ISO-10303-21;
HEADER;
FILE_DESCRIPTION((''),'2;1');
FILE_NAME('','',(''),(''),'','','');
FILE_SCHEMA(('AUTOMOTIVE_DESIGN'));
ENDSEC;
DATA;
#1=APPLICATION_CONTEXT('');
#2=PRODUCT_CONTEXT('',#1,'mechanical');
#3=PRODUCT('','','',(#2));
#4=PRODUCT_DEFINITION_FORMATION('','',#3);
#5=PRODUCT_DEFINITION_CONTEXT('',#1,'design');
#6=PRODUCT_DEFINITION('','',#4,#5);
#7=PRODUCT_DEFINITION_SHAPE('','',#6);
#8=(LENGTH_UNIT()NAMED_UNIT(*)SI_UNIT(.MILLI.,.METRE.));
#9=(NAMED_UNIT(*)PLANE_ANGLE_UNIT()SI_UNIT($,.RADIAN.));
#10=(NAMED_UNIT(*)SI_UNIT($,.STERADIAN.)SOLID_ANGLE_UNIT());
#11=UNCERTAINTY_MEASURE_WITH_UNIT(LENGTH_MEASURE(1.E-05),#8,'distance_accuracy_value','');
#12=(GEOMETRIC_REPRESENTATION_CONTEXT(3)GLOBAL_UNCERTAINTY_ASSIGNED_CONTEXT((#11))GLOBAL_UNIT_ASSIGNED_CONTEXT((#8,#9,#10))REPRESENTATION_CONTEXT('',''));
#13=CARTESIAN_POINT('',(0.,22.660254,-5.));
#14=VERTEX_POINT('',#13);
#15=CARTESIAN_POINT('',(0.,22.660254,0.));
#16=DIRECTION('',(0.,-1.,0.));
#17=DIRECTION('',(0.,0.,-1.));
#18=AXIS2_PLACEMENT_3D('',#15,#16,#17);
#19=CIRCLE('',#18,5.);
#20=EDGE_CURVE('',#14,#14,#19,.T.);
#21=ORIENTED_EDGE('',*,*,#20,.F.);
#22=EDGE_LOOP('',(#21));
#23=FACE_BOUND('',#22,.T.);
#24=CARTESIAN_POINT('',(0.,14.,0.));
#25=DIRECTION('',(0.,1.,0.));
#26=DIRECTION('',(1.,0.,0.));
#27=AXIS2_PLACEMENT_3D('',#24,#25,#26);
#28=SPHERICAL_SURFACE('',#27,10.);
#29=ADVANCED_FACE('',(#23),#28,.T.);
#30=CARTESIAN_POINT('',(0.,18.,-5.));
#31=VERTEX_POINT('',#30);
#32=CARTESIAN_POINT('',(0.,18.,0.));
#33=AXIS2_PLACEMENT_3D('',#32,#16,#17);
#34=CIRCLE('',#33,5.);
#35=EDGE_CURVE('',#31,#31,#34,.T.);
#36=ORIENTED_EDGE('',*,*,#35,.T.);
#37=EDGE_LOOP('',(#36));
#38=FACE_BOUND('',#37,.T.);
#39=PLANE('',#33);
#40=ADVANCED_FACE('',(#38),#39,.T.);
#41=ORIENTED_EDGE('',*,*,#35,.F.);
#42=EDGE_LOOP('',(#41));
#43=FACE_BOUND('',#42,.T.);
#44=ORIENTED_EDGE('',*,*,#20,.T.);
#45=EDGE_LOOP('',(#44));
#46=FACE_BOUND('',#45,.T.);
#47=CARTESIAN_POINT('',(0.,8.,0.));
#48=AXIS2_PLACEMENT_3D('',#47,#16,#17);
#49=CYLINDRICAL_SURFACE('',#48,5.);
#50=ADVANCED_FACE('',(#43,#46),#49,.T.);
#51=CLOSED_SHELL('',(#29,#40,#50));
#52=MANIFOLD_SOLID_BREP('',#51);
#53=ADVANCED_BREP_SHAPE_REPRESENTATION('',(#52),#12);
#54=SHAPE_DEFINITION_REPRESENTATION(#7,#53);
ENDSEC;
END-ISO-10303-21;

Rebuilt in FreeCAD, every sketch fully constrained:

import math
import FreeCAD as App
import Part
import Sketcher

V = App.Vector
Q = App.Units.Quantity

doc = App.newDocument("Part")
body = doc.addObject("PartDesign::Body", "Body")

sketch1 = doc.addObject("Sketcher::SketchObject", "Sketch")
body.addObject(sketch1)
sketch1.AttachmentSupport = (doc.XZ_Plane, [""])
sketch1.MapMode = "FlatFace"
sketch1.addGeometry(Part.Circle(V(0, 0, 0), V(0, 0, 1), 5), False)
sketch1.addConstraint(Sketcher.Constraint("Coincident", 0, 3, -1, 1))
sketch1.addConstraint(Sketcher.Constraint("Diameter", 0, Q("10 mm")))
pad1 = doc.addObject("PartDesign::Pad", "Pad")
body.addObject(pad1)
pad1.Profile = sketch1
pad1.Length = 8
pad1.Reversed = True

sketch2 = doc.addObject("Sketcher::SketchObject", "Sketch001")
body.addObject(sketch2)
sketch2.AttachmentSupport = (doc.XY_Plane, [""])
sketch2.MapMode = "FlatFace"
sketch2.addGeometry(Part.ArcOfCircle(Part.Circle(V(0, 14, 0), V(0, 0, 1), 10), math.radians(-90), math.radians(0)), False)
sketch2.addGeometry(Part.ArcOfCircle(Part.Circle(V(0, 14, 0), V(0, 0, 1), 10), math.radians(0), math.radians(90)), False)
sketch2.addGeometry(Part.LineSegment(V(0, 24, 0), V(0, 4, 0)), False)
sketch2.addConstraint(Sketcher.Constraint("Tangent", 0, 2, 1, 1))
sketch2.addConstraint(Sketcher.Constraint("Coincident", 1, 2, 2, 1))
sketch2.addConstraint(Sketcher.Constraint("Coincident", 2, 2, 0, 1))
sketch2.addConstraint(Sketcher.Constraint("Vertical", 2))
sketch2.addConstraint(Sketcher.Constraint("Equal", 0, 1))
sketch2.addConstraint(Sketcher.Constraint("PointOnObject", 0, 3, -2))
sketch2.addConstraint(Sketcher.Constraint("PointOnObject", 1, 2, -2))
sketch2.addConstraint(Sketcher.Constraint("Horizontal", 1, 3, 0, 2))
sketch2.addConstraint(Sketcher.Constraint("Radius", 0, Q("10 mm")))
sketch2.addConstraint(Sketcher.Constraint("DistanceY", -1, 1, 0, 3, Q("14 mm")))
revolution = doc.addObject("PartDesign::Revolution", "Revolution")
body.addObject(revolution)
revolution.Profile = sketch2
revolution.ReferenceAxis = (sketch2, ["V_Axis"])
revolution.Angle = 360

sketch3 = doc.addObject("Sketcher::SketchObject", "Sketch002")
body.addObject(sketch3)
sketch3.AttachmentSupport = (doc.XZ_Plane, [""])
sketch3.MapMode = "FlatFace"
sketch3.addGeometry(Part.Circle(V(0, 0, 0), V(0, 0, 1), 24), False)
sketch3.addGeometry(Part.Circle(V(0, 0, 0), V(0, 0, 1), 5), False)
sketch3.addConstraint(Sketcher.Constraint("Coincident", 0, 3, -1, 1))
sketch3.addConstraint(Sketcher.Constraint("Coincident", 1, 3, -1, 1))
sketch3.addConstraint(Sketcher.Constraint("Diameter", 1, Q("10 mm")))
sketch3.addConstraint(Sketcher.Constraint("Diameter", 0, Q("47.405285 mm")))
pocket1 = doc.addObject("PartDesign::Pocket", "Pocket")
body.addObject(pocket1)
pocket1.Profile = sketch3
pocket1.Length = 28

sketch4 = doc.addObject("Sketcher::SketchObject", "Sketch003")
body.addObject(sketch4)
sketch4.AttachmentSupport = (doc.XZ_Plane, [""])
sketch4.MapMode = "FlatFace"
sketch4.addGeometry(Part.Circle(V(0, 0, 0), V(0, 0, 1), 5), False)
sketch4.addConstraint(Sketcher.Constraint("Coincident", 0, 3, -1, 1))
sketch4.addConstraint(Sketcher.Constraint("Diameter", 0, Q("10 mm")))
pocket2 = doc.addObject("PartDesign::Pocket", "Pocket001")
body.addObject(pocket2)
pocket2.Profile = sketch4
pocket2.Length = 18

doc.recompute()
